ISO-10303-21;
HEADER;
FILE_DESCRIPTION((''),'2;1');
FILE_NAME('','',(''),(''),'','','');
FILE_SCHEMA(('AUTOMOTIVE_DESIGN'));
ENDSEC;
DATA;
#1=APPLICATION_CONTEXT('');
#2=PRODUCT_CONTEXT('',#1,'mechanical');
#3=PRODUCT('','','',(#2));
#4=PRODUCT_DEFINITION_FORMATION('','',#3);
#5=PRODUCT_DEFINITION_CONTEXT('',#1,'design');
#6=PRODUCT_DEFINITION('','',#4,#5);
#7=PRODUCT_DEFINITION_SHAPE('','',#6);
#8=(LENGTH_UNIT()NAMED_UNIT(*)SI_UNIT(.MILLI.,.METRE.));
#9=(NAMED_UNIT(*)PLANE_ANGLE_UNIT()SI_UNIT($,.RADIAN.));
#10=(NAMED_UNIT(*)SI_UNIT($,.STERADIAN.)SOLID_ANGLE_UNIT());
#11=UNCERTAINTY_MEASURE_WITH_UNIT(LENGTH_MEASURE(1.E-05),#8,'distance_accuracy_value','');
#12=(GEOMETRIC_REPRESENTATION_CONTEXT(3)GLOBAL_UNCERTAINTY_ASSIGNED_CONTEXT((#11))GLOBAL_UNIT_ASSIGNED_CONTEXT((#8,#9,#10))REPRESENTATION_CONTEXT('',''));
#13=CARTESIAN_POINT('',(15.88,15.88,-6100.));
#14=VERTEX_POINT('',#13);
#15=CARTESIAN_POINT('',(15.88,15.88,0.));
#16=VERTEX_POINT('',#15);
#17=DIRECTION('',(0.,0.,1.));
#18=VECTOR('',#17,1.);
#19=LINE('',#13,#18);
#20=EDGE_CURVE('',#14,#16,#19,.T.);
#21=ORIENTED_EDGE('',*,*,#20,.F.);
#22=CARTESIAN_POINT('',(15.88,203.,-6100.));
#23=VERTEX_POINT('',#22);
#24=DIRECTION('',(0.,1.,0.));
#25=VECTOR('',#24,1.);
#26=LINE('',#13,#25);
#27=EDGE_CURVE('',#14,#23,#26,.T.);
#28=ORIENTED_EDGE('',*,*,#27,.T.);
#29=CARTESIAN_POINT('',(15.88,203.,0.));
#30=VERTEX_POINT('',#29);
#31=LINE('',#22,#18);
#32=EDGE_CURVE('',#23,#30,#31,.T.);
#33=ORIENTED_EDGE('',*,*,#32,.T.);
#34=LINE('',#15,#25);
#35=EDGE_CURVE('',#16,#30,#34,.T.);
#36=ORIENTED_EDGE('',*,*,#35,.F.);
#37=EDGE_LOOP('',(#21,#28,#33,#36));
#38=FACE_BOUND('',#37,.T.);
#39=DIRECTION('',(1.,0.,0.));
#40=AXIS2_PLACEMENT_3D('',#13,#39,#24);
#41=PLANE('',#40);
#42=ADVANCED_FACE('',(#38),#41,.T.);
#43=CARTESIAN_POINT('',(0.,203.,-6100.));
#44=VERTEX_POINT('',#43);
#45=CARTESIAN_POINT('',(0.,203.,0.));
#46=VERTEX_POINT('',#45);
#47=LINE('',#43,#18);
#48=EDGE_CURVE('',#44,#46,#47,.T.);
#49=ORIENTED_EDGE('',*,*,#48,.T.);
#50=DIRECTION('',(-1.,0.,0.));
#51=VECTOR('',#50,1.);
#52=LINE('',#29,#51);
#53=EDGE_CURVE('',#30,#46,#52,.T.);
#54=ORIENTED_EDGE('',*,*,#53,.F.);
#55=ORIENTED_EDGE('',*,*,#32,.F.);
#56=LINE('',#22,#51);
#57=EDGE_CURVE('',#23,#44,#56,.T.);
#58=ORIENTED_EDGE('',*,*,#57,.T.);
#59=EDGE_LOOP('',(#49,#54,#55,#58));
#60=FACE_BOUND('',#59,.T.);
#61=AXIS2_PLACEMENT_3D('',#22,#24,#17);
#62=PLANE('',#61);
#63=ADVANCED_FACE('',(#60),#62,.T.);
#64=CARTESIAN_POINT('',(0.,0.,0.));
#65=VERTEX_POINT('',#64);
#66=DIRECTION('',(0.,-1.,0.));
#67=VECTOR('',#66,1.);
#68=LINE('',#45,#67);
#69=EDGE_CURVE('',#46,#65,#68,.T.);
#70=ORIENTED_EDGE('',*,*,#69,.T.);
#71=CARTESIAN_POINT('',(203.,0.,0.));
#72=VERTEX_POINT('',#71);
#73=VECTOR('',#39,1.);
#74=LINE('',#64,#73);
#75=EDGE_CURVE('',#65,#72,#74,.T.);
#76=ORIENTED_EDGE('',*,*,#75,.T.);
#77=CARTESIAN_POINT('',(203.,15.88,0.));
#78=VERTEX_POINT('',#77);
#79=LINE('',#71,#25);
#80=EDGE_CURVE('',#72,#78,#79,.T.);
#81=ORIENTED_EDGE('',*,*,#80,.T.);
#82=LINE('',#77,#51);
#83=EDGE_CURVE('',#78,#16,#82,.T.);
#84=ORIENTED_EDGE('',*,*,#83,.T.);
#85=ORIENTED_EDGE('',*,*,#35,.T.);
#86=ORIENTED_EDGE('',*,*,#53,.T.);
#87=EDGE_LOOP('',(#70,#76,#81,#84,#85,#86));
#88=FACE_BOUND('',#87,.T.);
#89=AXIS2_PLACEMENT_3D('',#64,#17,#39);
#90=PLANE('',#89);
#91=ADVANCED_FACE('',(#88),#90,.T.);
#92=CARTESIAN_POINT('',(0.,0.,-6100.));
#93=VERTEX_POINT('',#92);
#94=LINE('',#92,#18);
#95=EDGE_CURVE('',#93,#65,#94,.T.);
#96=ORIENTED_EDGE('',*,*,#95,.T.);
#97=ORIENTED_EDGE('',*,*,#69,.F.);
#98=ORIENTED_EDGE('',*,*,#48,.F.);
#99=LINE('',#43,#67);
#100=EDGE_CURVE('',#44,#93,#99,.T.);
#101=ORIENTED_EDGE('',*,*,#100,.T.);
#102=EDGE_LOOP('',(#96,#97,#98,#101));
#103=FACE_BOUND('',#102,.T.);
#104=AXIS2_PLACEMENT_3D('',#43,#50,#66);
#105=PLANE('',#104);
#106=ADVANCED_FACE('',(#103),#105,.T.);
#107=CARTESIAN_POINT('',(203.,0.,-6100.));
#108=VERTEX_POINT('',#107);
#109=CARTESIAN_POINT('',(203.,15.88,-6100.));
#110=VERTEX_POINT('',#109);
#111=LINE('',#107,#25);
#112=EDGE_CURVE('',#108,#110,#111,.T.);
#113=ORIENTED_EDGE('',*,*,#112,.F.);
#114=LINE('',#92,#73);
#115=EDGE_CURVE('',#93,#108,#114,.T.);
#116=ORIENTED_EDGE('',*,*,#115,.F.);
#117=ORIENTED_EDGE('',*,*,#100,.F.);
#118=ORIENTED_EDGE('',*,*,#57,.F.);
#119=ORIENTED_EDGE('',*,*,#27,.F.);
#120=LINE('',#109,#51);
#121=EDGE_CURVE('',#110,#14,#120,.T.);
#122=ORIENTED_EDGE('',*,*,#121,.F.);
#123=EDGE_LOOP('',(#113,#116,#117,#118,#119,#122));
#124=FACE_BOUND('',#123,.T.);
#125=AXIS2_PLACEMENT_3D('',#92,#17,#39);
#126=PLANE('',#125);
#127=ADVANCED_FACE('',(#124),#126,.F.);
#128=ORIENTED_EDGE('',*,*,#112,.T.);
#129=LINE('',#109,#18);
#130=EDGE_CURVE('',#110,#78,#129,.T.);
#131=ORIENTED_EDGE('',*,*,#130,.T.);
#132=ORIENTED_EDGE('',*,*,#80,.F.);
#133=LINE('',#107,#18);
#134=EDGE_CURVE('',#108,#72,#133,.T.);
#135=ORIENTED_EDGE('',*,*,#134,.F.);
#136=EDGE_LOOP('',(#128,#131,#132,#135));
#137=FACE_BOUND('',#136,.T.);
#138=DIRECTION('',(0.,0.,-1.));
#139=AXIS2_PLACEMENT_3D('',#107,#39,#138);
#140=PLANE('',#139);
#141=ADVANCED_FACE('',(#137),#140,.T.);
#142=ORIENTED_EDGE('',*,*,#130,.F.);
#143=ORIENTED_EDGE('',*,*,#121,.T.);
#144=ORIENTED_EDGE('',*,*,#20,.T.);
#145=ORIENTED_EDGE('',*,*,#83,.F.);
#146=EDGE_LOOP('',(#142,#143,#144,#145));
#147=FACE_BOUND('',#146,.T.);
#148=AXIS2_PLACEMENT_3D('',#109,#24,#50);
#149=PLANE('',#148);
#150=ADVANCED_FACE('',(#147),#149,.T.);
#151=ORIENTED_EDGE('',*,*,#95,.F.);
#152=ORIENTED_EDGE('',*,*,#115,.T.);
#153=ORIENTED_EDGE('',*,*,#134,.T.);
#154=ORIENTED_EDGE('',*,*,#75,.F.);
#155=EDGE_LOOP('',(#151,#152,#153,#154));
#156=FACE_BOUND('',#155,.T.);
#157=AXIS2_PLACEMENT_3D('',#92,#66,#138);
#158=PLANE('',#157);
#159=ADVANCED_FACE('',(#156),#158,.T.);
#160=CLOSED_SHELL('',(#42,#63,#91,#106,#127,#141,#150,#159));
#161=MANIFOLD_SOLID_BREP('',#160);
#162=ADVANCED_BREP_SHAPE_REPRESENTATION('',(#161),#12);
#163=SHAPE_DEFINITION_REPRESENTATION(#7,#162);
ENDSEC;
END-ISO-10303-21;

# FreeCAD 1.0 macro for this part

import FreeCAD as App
import Part
import Sketcher
from FreeCAD import Vector
Q = App.Units.Quantity


def add_polygon(sketch, points):
    """Adds a closed chain of lines whose ends are joined by coincident constraints."""
    first, n = sketch.GeometryCount, len(points)
    for a, b in zip(points, points[1:] + points[:1]):
        sketch.addGeometry(Part.LineSegment(App.Vector(*a, 0), App.Vector(*b, 0)), False)
    for i in range(n):
        sketch.addConstraint(Sketcher.Constraint("Coincident", first + i, 2, first + (i + 1) % n, 1))

doc = App.newDocument("Part")
body = doc.addObject("PartDesign::Body", "Body")

sketch1 = body.newObject("Sketcher::SketchObject", "Sketch")
sketch1.AttachmentSupport = (doc.getObject("XY_Plane"), [""])
sketch1.MapMode = "FlatFace"
add_polygon(sketch1, [(0, 203), (0, 0), (203, 0), (203, 16), (16, 16), (16, 203)])
sketch1.addConstraint([
    Sketcher.Constraint("Vertical", 0),
    Sketcher.Constraint("Horizontal", 1),
    Sketcher.Constraint("Vertical", 2),
    Sketcher.Constraint("Horizontal", 3),
    Sketcher.Constraint("Vertical", 4),
    Sketcher.Constraint("Horizontal", 5),
    Sketcher.Constraint("Coincident", 0, 2, -1, 1),
    Sketcher.Constraint("Equal", 1, 0),
    Sketcher.Constraint("Equal", 5, 2),
    Sketcher.Constraint("DistanceX", 1, 1, 1, 2, Q("203 mm")),
    Sketcher.Constraint("DistanceX", 3, 2, 3, 1, Q("187.12 mm")),
])
pad1 = body.newObject("PartDesign::Pad", "Pad")
pad1.Profile = sketch1
pad1.Length = 6100
pad1.Reversed = True

doc.recompute()
